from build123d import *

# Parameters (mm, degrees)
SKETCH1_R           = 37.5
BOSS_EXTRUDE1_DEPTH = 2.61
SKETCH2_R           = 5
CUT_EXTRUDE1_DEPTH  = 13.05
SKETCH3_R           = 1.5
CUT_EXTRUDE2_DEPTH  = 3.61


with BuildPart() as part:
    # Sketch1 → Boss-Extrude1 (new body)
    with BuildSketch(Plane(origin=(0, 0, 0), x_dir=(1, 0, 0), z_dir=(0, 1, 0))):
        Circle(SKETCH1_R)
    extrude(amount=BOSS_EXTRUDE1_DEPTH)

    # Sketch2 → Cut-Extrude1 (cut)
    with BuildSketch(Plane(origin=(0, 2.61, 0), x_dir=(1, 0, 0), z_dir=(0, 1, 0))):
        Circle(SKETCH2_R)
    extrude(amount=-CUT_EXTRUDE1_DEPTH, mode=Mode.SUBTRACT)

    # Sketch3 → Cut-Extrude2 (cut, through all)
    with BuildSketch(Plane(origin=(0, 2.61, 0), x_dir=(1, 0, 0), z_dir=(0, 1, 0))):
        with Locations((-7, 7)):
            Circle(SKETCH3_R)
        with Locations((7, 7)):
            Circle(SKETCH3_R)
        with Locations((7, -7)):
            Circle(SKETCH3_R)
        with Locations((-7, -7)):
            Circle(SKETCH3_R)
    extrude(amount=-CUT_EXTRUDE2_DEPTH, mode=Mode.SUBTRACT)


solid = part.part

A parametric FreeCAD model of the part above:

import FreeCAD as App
import Part
import Sketcher

V = App.Vector
Q = App.Units.Quantity

doc = App.newDocument("Part")
params = doc.addObject("Spreadsheet::Sheet", "Params")
for row, (alias, value) in enumerate([
    ("sketch1_diameter", "75 mm"),
    ("pad1_length", "2.61 mm"),
    ("sketch2_diameter", "10 mm"),
    ("pocket1_length", "13.05 mm"),
    ("sketch3_diameter", "3 mm"),
], start=1):
    params.set(f"A{row}", alias)
    params.set(f"B{row}", "=" + value)
    params.setAlias(f"B{row}", alias)

body = doc.addObject("PartDesign::Body", "Body")

# Sketch on XZ plane
sketch1 = body.newObject("Sketcher::SketchObject", "Sketch")
sketch1.AttachmentSupport = (doc.getObject("XZ_Plane"), [""])
sketch1.MapMode = "FlatFace"
sketch1.addGeometry(Part.Circle(V(0, 0, 0), V(0, 0, 1), 38), False)
sketch1.addConstraint([
    Sketcher.Constraint("Coincident", 0, 3, -1, 1),
    Sketcher.Constraint("Diameter", 0, Q("75 mm")),
])
sketch1.setExpression("Constraints[1]", "Params.sketch1_diameter")
pad1 = body.newObject("PartDesign::Pad", "Pad")
pad1.Profile = sketch1
pad1.setExpression("Length", "Params.pad1_length")
pad1.Reversed = True

# Sketch on XZ plane
sketch2 = body.newObject("Sketcher::SketchObject", "Sketch001")
sketch2.AttachmentSupport = (doc.getObject("XZ_Plane"), [""])
sketch2.MapMode = "FlatFace"
sketch2.AttachmentOffset = App.Placement(V(0, 0, -2.61), App.Rotation())
sketch2.addGeometry(Part.Circle(V(0, 0, 0), V(0, 0, 1), 5), False)
sketch2.addConstraint([
    Sketcher.Constraint("Coincident", 0, 3, -1, 1),
    Sketcher.Constraint("Diameter", 0, Q("10 mm")),
])
sketch2.setExpression("Constraints[1]", "Params.sketch2_diameter")
pocket1 = body.newObject("PartDesign::Pocket", "Pocket")
pocket1.Profile = sketch2
pocket1.setExpression("Length", "Params.pocket1_length")
pocket1.Reversed = True

# Sketch on XZ plane
sketch3 = body.newObject("Sketcher::SketchObject", "Sketch002")
sketch3.AttachmentSupport = (doc.getObject("XZ_Plane"), [""])
sketch3.MapMode = "FlatFace"
sketch3.AttachmentOffset = App.Placement(V(0, 0, -2.61), App.Rotation())
sketch3.addGeometry([
    Part.Circle(V(-7, -7, 0), V(0, 0, 1), 1.5),
    Part.Circle(V(7, -7, 0), V(0, 0, 1), 1.5),
    Part.Circle(V(7, 7, 0), V(0, 0, 1), 1.5),
    Part.Circle(V(-7, 7, 0), V(0, 0, 1), 1.5),
], False)
sketch3.addConstraint([
    Sketcher.Constraint("Equal", 0, 1),
    Sketcher.Constraint("Equal", 1, 2),
    Sketcher.Constraint("Equal", 2, 3),
    Sketcher.Constraint("Symmetric", 0, 3, 2, 3, -1, 1),
    Sketcher.Constraint("Symmetric", 1, 3, 3, 3, -1, 1),
    Sketcher.Constraint("Symmetric", 0, 3, 1, 3, -2),
    Sketcher.Constraint("Diameter", 0, Q("3 mm")),
    Sketcher.Constraint("DistanceX", 0, 3, -1, 1, Q("7 mm")),
    Sketcher.Constraint("DistanceY", 0, 3, -1, 1, Q("7 mm")),
])
sketch3.setExpression("Constraints[6]", "Params.sketch3_diameter")
pocket2 = body.newObject("PartDesign::Pocket", "Pocket001")
pocket2.Profile = sketch3
pocket2.Type = "ThroughAll"
pocket2.Reversed = True

doc.recompute()
